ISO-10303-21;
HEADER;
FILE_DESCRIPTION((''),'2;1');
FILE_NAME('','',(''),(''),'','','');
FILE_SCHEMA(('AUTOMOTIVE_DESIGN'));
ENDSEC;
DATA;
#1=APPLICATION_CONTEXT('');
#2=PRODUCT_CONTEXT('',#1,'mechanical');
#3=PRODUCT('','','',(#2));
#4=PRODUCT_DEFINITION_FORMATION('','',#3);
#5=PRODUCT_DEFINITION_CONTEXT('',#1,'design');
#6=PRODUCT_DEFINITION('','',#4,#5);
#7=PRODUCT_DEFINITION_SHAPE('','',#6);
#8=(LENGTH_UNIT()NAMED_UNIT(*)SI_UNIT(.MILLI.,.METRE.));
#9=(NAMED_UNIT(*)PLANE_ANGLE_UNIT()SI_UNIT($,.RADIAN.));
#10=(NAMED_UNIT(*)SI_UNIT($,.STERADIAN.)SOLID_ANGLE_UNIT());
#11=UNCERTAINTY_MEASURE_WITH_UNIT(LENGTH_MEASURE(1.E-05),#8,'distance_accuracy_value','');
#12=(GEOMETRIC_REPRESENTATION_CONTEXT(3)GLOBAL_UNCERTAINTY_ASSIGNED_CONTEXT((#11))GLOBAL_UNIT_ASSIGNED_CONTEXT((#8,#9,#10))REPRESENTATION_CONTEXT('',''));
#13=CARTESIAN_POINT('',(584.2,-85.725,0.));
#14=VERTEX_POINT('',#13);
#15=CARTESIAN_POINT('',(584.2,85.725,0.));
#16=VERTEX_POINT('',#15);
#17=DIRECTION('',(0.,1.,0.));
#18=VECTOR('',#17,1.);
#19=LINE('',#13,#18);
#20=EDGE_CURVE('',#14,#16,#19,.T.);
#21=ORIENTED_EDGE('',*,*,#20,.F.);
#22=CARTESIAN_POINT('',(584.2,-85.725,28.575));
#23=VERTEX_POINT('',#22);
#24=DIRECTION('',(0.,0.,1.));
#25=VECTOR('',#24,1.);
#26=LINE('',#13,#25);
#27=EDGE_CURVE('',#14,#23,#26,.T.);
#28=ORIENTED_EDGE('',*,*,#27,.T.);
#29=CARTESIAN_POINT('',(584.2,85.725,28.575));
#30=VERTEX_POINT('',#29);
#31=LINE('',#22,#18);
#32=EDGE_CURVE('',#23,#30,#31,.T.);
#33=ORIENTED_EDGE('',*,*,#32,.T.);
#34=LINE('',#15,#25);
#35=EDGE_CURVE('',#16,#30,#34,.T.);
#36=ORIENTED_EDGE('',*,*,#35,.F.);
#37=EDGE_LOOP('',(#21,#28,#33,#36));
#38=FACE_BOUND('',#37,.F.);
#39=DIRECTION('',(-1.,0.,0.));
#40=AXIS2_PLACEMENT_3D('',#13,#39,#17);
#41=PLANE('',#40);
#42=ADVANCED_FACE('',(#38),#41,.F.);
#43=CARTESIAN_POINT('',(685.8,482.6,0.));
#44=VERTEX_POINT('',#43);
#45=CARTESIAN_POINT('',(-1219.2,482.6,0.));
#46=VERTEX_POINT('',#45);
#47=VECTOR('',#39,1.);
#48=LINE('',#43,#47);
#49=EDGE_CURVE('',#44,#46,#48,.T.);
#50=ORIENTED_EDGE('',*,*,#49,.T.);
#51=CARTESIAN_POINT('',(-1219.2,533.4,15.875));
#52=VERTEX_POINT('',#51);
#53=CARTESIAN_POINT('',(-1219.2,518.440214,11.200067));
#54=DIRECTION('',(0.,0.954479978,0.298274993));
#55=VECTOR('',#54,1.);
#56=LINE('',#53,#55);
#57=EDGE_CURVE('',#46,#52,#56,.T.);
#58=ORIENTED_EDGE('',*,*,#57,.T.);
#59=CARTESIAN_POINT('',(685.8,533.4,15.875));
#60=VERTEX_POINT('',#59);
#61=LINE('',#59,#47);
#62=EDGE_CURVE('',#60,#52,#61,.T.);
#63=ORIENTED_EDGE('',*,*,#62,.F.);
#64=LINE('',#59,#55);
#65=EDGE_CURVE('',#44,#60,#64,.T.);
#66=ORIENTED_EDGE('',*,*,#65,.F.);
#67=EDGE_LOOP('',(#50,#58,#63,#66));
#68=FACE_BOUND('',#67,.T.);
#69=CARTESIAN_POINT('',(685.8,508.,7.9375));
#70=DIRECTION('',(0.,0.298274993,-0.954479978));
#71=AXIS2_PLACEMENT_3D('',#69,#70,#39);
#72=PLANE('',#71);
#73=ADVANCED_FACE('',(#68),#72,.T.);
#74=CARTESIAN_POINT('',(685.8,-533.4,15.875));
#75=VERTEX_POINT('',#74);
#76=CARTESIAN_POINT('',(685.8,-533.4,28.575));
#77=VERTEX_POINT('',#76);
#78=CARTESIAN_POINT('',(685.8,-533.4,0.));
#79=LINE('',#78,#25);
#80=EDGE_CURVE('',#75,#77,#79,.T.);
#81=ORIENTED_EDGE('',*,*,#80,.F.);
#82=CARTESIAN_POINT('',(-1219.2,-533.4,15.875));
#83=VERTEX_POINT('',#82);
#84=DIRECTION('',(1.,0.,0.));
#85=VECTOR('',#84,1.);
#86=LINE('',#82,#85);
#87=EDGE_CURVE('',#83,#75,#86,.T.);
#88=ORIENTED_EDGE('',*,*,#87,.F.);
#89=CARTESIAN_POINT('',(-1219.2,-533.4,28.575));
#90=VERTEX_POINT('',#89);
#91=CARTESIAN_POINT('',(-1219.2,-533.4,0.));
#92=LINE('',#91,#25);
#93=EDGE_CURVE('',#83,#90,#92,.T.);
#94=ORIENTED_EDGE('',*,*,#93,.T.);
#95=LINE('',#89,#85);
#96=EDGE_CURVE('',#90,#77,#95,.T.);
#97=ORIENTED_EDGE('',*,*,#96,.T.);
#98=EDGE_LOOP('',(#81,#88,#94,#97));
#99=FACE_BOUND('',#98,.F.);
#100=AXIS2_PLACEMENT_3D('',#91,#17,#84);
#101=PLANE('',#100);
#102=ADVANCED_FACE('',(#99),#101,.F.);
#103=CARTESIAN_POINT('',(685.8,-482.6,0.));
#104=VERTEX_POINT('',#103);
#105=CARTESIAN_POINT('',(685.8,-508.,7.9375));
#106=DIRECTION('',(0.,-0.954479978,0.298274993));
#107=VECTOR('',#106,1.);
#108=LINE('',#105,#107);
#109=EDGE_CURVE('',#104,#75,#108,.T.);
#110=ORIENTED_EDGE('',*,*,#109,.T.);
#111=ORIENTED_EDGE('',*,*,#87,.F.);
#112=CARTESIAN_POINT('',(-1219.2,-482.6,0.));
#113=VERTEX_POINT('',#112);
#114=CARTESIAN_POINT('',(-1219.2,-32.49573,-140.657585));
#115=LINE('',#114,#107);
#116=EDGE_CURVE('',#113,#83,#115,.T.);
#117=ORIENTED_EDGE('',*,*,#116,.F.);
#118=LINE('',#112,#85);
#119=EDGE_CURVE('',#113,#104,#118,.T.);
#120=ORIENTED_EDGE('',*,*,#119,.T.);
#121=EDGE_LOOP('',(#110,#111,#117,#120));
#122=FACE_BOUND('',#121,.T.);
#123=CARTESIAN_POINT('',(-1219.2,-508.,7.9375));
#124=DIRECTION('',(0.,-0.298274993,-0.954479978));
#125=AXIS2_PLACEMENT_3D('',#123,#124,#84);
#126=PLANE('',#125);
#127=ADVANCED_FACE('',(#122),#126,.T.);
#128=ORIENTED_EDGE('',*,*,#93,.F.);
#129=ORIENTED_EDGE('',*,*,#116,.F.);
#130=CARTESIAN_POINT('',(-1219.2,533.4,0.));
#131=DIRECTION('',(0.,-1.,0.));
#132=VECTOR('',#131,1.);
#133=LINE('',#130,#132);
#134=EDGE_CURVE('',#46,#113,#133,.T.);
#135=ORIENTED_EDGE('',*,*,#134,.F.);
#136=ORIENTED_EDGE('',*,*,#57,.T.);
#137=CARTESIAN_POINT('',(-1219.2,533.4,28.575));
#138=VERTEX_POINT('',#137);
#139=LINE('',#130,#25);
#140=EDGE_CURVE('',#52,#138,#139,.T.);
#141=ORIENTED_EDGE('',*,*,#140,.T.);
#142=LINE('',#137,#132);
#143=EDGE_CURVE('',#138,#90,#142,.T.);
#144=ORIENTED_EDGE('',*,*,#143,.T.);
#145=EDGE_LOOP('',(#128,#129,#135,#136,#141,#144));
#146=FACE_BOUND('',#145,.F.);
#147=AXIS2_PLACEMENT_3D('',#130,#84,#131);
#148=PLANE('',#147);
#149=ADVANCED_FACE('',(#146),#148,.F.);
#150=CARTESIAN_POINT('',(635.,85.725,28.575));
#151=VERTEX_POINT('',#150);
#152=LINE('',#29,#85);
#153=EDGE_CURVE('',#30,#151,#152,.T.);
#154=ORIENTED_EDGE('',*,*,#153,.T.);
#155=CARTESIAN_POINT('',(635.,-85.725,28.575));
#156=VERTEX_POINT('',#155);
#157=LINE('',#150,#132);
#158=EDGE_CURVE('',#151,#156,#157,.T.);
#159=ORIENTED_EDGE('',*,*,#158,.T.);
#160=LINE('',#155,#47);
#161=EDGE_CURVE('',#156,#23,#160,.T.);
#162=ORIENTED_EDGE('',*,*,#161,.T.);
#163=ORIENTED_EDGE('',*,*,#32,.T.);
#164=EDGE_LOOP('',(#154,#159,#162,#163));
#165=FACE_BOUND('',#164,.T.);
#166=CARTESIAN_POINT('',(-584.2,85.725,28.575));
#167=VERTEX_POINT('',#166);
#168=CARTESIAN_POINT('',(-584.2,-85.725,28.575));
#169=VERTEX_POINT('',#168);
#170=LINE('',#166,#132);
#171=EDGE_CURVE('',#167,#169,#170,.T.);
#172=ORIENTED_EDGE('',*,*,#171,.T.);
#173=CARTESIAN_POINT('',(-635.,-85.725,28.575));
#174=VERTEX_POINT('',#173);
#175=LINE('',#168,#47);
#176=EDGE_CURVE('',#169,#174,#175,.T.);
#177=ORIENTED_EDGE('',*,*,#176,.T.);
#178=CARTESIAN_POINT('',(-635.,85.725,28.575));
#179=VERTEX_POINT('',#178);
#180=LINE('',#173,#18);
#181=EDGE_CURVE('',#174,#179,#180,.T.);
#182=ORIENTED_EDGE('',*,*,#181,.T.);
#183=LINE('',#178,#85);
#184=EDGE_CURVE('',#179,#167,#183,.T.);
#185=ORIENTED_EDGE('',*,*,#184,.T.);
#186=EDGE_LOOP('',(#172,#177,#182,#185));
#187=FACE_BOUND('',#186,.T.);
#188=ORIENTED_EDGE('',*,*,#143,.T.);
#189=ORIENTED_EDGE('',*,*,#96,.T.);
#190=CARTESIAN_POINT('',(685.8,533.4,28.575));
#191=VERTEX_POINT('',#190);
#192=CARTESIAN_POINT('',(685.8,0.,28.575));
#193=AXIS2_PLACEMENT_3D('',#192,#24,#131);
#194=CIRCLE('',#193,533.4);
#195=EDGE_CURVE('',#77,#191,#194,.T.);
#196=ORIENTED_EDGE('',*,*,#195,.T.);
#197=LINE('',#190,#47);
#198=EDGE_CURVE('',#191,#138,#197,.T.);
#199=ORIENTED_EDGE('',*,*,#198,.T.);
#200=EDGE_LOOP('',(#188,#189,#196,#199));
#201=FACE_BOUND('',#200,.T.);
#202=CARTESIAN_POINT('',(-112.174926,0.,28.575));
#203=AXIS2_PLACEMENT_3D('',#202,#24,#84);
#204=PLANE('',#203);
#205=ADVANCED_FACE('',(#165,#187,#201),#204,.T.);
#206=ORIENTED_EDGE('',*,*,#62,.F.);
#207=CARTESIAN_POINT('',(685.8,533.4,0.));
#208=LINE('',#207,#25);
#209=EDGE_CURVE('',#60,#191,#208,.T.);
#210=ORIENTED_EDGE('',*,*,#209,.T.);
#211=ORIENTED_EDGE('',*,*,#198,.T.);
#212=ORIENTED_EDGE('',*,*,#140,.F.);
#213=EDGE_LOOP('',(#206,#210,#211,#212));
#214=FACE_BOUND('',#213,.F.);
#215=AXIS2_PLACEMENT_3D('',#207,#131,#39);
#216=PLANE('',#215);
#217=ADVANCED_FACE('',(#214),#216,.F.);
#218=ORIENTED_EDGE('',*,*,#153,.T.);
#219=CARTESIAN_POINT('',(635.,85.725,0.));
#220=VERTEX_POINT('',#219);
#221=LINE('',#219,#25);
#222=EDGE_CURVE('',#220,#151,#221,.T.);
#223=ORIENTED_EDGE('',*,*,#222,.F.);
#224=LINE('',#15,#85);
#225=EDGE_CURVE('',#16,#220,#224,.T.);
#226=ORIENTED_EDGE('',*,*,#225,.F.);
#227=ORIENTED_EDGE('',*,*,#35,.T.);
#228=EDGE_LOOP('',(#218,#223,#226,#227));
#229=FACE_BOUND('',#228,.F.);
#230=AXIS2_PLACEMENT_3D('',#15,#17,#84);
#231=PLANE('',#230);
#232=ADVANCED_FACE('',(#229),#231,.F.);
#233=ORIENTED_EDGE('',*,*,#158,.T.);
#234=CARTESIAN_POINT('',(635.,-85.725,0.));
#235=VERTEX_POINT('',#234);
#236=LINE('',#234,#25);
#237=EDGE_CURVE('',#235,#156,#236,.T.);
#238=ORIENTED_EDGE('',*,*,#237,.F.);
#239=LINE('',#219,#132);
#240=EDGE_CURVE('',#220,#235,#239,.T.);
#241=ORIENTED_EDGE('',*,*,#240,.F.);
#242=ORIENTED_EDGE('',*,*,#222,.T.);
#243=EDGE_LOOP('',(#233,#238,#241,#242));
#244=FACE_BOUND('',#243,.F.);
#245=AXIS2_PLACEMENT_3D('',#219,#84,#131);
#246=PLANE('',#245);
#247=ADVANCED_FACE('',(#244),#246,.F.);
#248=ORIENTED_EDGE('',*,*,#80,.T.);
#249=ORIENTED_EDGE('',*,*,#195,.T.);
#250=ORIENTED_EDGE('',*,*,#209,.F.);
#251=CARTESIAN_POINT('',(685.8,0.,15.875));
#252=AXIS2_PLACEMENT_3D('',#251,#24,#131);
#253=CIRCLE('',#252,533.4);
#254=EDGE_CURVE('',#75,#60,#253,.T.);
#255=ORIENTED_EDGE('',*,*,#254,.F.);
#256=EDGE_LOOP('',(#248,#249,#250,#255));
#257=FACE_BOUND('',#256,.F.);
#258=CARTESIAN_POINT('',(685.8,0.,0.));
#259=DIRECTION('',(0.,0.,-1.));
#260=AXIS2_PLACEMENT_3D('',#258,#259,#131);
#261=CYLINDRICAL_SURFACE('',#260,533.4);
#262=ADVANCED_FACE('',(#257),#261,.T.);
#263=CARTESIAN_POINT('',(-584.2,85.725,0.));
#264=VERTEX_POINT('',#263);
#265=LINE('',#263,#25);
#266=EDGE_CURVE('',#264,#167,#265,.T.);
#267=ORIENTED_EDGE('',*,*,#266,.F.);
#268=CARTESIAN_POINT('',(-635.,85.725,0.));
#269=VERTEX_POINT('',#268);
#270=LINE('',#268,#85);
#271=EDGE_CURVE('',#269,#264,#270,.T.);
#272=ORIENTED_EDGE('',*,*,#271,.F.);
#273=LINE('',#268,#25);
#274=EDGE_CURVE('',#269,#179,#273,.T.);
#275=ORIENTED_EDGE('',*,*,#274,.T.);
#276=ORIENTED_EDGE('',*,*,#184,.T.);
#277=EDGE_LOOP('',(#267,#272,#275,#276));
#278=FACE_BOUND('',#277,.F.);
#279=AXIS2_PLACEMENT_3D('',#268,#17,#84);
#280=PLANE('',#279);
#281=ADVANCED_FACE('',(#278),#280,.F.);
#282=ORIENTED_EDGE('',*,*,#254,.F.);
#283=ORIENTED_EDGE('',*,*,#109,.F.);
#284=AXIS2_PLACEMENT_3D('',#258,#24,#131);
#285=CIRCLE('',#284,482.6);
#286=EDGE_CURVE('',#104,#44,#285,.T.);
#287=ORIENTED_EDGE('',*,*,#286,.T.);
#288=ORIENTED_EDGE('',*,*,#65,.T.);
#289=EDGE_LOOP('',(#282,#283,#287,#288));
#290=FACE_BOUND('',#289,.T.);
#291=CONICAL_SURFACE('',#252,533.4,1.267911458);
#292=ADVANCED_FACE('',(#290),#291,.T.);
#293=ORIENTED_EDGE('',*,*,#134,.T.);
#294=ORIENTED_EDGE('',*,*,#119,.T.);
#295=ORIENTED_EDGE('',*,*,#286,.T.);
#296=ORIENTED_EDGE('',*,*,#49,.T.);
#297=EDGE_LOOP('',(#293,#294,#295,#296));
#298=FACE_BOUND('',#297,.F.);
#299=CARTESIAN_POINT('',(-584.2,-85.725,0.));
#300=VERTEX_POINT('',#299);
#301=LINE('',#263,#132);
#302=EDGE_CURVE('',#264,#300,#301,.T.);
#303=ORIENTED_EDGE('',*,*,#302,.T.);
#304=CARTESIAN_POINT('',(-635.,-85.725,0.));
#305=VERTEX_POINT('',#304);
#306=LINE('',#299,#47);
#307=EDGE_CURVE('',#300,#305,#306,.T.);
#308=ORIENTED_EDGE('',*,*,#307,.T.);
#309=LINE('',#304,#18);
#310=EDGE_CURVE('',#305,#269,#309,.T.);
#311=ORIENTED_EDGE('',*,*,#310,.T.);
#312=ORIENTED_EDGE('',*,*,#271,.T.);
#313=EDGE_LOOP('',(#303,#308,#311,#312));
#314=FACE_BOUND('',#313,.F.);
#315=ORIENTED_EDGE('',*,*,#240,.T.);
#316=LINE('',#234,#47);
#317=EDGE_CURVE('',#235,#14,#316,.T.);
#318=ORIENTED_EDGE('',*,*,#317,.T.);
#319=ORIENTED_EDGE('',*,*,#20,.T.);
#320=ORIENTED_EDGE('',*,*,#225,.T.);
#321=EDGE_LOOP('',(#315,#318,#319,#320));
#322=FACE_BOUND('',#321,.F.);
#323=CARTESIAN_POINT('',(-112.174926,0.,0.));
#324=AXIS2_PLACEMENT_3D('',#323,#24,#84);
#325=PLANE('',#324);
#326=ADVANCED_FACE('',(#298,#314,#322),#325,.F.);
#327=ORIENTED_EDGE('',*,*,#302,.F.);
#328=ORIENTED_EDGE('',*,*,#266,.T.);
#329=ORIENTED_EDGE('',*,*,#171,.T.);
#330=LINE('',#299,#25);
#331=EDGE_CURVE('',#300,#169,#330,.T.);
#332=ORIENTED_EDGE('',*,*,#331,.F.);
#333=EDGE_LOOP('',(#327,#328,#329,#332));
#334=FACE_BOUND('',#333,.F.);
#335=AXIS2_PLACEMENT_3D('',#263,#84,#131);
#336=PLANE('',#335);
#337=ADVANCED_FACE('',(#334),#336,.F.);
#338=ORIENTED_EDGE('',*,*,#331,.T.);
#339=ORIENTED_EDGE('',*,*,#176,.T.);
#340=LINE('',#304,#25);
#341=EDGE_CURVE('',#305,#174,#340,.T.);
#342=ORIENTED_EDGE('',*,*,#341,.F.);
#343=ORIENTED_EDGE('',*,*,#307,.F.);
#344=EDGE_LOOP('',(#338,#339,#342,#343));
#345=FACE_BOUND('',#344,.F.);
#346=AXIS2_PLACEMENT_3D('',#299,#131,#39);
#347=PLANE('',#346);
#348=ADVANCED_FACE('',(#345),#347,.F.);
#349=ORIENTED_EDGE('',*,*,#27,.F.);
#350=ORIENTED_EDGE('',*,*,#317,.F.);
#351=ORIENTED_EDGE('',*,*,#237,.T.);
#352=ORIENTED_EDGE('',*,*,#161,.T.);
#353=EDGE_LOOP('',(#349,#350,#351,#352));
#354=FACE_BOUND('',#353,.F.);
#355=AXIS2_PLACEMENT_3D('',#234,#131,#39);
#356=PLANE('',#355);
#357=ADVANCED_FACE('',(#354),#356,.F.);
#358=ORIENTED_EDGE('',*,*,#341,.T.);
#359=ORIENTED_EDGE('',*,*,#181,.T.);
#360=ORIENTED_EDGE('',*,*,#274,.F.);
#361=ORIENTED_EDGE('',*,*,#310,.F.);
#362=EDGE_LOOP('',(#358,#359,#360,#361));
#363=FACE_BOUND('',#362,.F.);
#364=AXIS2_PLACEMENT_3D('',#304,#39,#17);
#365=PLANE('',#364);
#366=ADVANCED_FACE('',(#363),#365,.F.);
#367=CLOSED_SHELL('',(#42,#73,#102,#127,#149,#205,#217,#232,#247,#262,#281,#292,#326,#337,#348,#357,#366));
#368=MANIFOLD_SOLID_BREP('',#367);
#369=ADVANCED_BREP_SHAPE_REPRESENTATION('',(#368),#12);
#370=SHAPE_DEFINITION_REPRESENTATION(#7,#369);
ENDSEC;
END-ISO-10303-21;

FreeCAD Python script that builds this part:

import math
import FreeCAD as App
import Part
import Sketcher
from FreeCAD import Vector
Q = App.Units.Quantity


def edges_at(feature, points):
    """Names of the edges that pass closest to the given points."""
    edges = feature.Shape.Edges
    near = lambda p: min(range(len(edges)), key=lambda i: edges[i].distToShape(Part.Vertex(*p))[0])
    return sorted({f"Edge{near(p) + 1}" for p in points})


def add_polygon(sketch, points):
    """Adds a closed chain of lines whose ends are joined by coincident constraints."""
    first, n = sketch.GeometryCount, len(points)
    for a, b in zip(points, points[1:] + points[:1]):
        sketch.addGeometry(Part.LineSegment(App.Vector(*a, 0), App.Vector(*b, 0)), False)
    for i in range(n):
        sketch.addConstraint(Sketcher.Constraint("Coincident", first + i, 2, first + (i + 1) % n, 1))

doc = App.newDocument("Part")
body = doc.addObject("PartDesign::Body", "Body")

# Sketch on XY plane
sketch1 = body.newObject("Sketcher::SketchObject", "Sketch")
sketch1.AttachmentSupport = (doc.getObject("XY_Plane"), [""])
sketch1.MapMode = "FlatFace"
sketch1.addGeometry(Part.LineSegment(Vector(685.8, 533.4, 0), Vector(-1219.2, 533.4, 0)), False)  # 0
sketch1.addGeometry(Part.LineSegment(Vector(-1219.2, 533.4, 0), Vector(-1219.2, -533.4, 0)), False)  # 1
sketch1.addGeometry(Part.LineSegment(Vector(-1219.2, -533.4, 0), Vector(685.8, -533.4, 0)), False)  # 2
sketch1.addGeometry(Part.ArcOfCircle(Part.Circle(Vector(685.8, 0, 0), Vector(0, 0, 1), 533.4), math.radians(-90), math.radians(90)), False)  # 3
add_polygon(sketch1, [(-635, 85.725), (-584.2, 85.725), (-584.2, -85.725), (-635, -85.725)])  # lines 4-7
add_polygon(sketch1, [(635, -85.725), (584.2, -85.725), (584.2, 85.725), (635, 85.725)])  # lines 8-11
sketch1.addConstraint([
    Sketcher.Constraint("Coincident", 0, 2, 1, 1),
    Sketcher.Constraint("Coincident", 1, 2, 2, 1),
    Sketcher.Constraint("Tangent", 2, 2, 3, 1),
    Sketcher.Constraint("Tangent", 3, 2, 0, 1),
    Sketcher.Constraint("Horizontal", 0),
    Sketcher.Constraint("Vertical", 1),
    Sketcher.Constraint("Horizontal", 2),
    Sketcher.Constraint("Horizontal", 4),
    Sketcher.Constraint("Vertical", 5),
    Sketcher.Constraint("Horizontal", 6),
    Sketcher.Constraint("Vertical", 7),
    Sketcher.Constraint("Horizontal", 8),
    Sketcher.Constraint("Vertical", 9),
    Sketcher.Constraint("Horizontal", 10),
    Sketcher.Constraint("Vertical", 11),
    Sketcher.Constraint("Symmetric", 4, 2, 8, 2, -1, 1),
    Sketcher.Constraint("Symmetric", 6, 2, 10, 2, -1, 1),
    Sketcher.Constraint("PointOnObject", 3, 3, -1),
    Sketcher.Constraint("Horizontal", 6, 2, 8, 2),
    Sketcher.Constraint("Radius", 3, Q("21 in")),
    Sketcher.Constraint("DistanceX", 0, 2, 0, 1, Q("75 in")),
    Sketcher.Constraint("DistanceX", 4, 1, 4, 2, Q("2 in")),
    Sketcher.Constraint("DistanceX", -1, 1, 3, 3, Q("27 in")),
    Sketcher.Constraint("DistanceX", 4, 2, -1, 1, Q("23 in")),
    Sketcher.Constraint("DistanceY", 5, 2, 5, 1, Q("6.75 in")),
])
pad1 = body.newObject("PartDesign::Pad", "Pad")
pad1.Profile = sketch1
pad1.Length = Q("1.125 in")
doc.recompute()

chamfer = body.newObject("PartDesign::Chamfer", "Chamfer")
chamfer.Base = (pad1, edges_at(pad1, [(-266.7, -533.4, 0), (1219.2, 0, 0), (-266.7, 533.4, 0)]))
chamfer.ChamferType = "Two distances"
chamfer.Size = Q("2 in")
chamfer.Size2 = Q("0.625 in")
chamfer.FlipDirection = True

doc.recompute()
